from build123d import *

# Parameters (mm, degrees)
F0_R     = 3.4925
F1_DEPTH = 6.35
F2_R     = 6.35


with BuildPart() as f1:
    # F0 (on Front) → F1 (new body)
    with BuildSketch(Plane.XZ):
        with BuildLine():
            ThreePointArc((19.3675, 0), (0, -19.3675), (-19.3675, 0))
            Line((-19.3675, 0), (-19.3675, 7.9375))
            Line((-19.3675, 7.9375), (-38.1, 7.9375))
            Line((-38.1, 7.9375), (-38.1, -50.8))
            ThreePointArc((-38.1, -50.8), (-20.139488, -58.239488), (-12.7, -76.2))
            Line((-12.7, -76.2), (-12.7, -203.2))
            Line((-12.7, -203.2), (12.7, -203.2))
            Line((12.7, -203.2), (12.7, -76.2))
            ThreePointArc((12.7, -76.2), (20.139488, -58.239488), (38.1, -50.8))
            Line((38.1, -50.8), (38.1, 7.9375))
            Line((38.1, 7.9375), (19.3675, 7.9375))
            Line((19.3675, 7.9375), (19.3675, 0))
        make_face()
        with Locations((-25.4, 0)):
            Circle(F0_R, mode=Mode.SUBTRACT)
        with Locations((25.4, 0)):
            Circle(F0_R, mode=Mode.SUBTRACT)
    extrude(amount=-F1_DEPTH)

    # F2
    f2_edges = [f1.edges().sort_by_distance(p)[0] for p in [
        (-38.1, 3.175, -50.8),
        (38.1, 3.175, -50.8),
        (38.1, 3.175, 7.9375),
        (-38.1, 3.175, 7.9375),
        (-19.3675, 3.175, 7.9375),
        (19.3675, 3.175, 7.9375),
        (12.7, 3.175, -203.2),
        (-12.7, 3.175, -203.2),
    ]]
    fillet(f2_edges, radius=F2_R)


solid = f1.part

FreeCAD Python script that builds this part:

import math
import FreeCAD as App
import Part
import Sketcher
Q = App.Units.Quantity


def edges_at(feature, points):
    """Names of the edges that pass closest to the given points."""
    edges = feature.Shape.Edges
    near = lambda p: min(range(len(edges)), key=lambda i: edges[i].distToShape(Part.Vertex(*p))[0])
    return sorted({f"Edge{near(p) + 1}" for p in points})

doc = App.newDocument("Part")
body = doc.addObject("PartDesign::Body", "Body")

# Sketch on XZ plane
sketch1 = doc.addObject("Sketcher::SketchObject", "Sketch")
body.addObject(sketch1)
sketch1.AttachmentSupport = (doc.XZ_Plane, [""])
sketch1.MapMode = "FlatFace"
sketch1.addGeometry(Part.ArcOfCircle(Part.Circle(App.Vector(0, 0, 0), App.Vector(0, 0, 1), 19.4), math.radians(180), math.radians(360)), False)
sketch1.addGeometry(Part.LineSegment(App.Vector(-19.4, 0, 0), App.Vector(-19.4, 7.9, 0)), False)
sketch1.addGeometry(Part.LineSegment(App.Vector(-19.4, 7.9, 0), App.Vector(-38.1, 7.9, 0)), False)
sketch1.addGeometry(Part.LineSegment(App.Vector(-38.1, 7.9, 0), App.Vector(-38.1, -50.8, 0)), False)
sketch1.addGeometry(Part.ArcOfCircle(Part.Circle(App.Vector(-38.1, -76.2, 0), App.Vector(0, 0, 1), 25.4), math.radians(0), math.radians(90)), False)
sketch1.addGeometry(Part.LineSegment(App.Vector(-12.7, -76.2, 0), App.Vector(-12.7, -203.2, 0)), False)
sketch1.addGeometry(Part.LineSegment(App.Vector(-12.7, -203.2, 0), App.Vector(12.7, -203.2, 0)), False)
sketch1.addGeometry(Part.LineSegment(App.Vector(12.7, -203.2, 0), App.Vector(12.7, -76.2, 0)), False)
sketch1.addGeometry(Part.ArcOfCircle(Part.Circle(App.Vector(38.1, -76.2, 0), App.Vector(0, 0, 1), 25.4), math.radians(90), math.radians(180)), False)
sketch1.addGeometry(Part.LineSegment(App.Vector(38.1, -50.8, 0), App.Vector(38.1, 7.9, 0)), False)
sketch1.addGeometry(Part.LineSegment(App.Vector(38.1, 7.9, 0), App.Vector(19.4, 7.9, 0)), False)
sketch1.addGeometry(Part.LineSegment(App.Vector(19.4, 7.9, 0), App.Vector(19.4, 0, 0)), False)
sketch1.addGeometry(Part.Circle(App.Vector(-25.4, 0, 0), App.Vector(0, 0, 1), 3.5), False)
sketch1.addGeometry(Part.Circle(App.Vector(25.4, 0, 0), App.Vector(0, 0, 1), 3.5), False)
sketch1.addConstraint(Sketcher.Constraint("Tangent", 0, 1, 1, 1))
sketch1.addConstraint(Sketcher.Constraint("Coincident", 1, 2, 2, 1))
sketch1.addConstraint(Sketcher.Constraint("Coincident", 2, 2, 3, 1))
sketch1.addConstraint(Sketcher.Constraint("Coincident", 3, 2, 4, 2))
sketch1.addConstraint(Sketcher.Constraint("Tangent", 4, 1, 5, 1))
sketch1.addConstraint(Sketcher.Constraint("Coincident", 5, 2, 6, 1))
sketch1.addConstraint(Sketcher.Constraint("Coincident", 6, 2, 7, 1))
sketch1.addConstraint(Sketcher.Constraint("Tangent", 7, 2, 8, 2))
sketch1.addConstraint(Sketcher.Constraint("Coincident", 8, 1, 9, 1))
sketch1.addConstraint(Sketcher.Constraint("Coincident", 9, 2, 10, 1))
sketch1.addConstraint(Sketcher.Constraint("Coincident", 10, 2, 11, 1))
sketch1.addConstraint(Sketcher.Constraint("Tangent", 11, 2, 0, 2))
sketch1.addConstraint(Sketcher.Constraint("Vertical", 1))
sketch1.addConstraint(Sketcher.Constraint("Horizontal", 2))
sketch1.addConstraint(Sketcher.Constraint("Vertical", 3))
sketch1.addConstraint(Sketcher.Constraint("Vertical", 5))
sketch1.addConstraint(Sketcher.Constraint("Horizontal", 6))
sketch1.addConstraint(Sketcher.Constraint("Vertical", 7))
sketch1.addConstraint(Sketcher.Constraint("Vertical", 9))
sketch1.addConstraint(Sketcher.Constraint("Horizontal", 10))
sketch1.addConstraint(Sketcher.Constraint("Vertical", 11))
sketch1.addConstraint(Sketcher.Constraint("Coincident", 0, 3, -1, 1))
sketch1.addConstraint(Sketcher.Constraint("Equal", 4, 8))
sketch1.addConstraint(Sketcher.Constraint("Equal", 12, 13))
sketch1.addConstraint(Sketcher.Constraint("Symmetric", 12, 3, 13, 3, -1, 1))
sketch1.addConstraint(Sketcher.Constraint("Symmetric", 4, 3, 8, 3, -2))
sketch1.addConstraint(Sketcher.Constraint("Symmetric", 2, 2, 9, 2, -2))
sketch1.addConstraint(Sketcher.Constraint("PointOnObject", 12, 3, -1))
sketch1.addConstraint(Sketcher.Constraint("Vertical", 4, 3, 2, 2))
sketch1.addConstraint(Sketcher.Constraint("Radius", 4, Q("1 in")))
sketch1.addConstraint(Sketcher.Constraint("DistanceX", 6, 1, 6, 2, Q("1 in")))
sketch1.addConstraint(Sketcher.Constraint("DistanceY", 5, 2, 5, 1, Q("5 in")))
sketch1.addConstraint(Sketcher.Constraint("Diameter", 12, Q("0.275 in")))
sketch1.addConstraint(Sketcher.Constraint("DistanceY", 4, 3, -1, 1, Q("3 in")))
sketch1.addConstraint(Sketcher.Constraint("DistanceX", 12, 3, -1, 1, Q("1 in")))
sketch1.addConstraint(Sketcher.Constraint("Radius", 0, Q("0.7625 in")))
sketch1.addConstraint(Sketcher.Constraint("DistanceY", 1, 1, 1, 2, Q("0.3125 in")))
pad1 = doc.addObject("PartDesign::Pad", "Pad")
body.addObject(pad1)
pad1.Profile = sketch1
pad1.Length = Q("0.25 in")
pad1.Reversed = True
doc.recompute()

fillet = doc.addObject("PartDesign::Fillet", "Fillet")
body.addObject(fillet)
fillet.Base = (pad1, edges_at(pad1, [
    (-38.1, 3.175, -50.8),
    (38.1, 3.175, -50.8),
    (38.1, 3.175, 7.938),
    (-38.1, 3.175, 7.938),
    (-19.367, 3.175, 7.938),
    (19.367, 3.175, 7.938),
    (12.7, 3.175, -203.2),
    (-12.7, 3.175, -203.2),
]))
fillet.Radius = Q("0.25 in")

doc.recompute()
